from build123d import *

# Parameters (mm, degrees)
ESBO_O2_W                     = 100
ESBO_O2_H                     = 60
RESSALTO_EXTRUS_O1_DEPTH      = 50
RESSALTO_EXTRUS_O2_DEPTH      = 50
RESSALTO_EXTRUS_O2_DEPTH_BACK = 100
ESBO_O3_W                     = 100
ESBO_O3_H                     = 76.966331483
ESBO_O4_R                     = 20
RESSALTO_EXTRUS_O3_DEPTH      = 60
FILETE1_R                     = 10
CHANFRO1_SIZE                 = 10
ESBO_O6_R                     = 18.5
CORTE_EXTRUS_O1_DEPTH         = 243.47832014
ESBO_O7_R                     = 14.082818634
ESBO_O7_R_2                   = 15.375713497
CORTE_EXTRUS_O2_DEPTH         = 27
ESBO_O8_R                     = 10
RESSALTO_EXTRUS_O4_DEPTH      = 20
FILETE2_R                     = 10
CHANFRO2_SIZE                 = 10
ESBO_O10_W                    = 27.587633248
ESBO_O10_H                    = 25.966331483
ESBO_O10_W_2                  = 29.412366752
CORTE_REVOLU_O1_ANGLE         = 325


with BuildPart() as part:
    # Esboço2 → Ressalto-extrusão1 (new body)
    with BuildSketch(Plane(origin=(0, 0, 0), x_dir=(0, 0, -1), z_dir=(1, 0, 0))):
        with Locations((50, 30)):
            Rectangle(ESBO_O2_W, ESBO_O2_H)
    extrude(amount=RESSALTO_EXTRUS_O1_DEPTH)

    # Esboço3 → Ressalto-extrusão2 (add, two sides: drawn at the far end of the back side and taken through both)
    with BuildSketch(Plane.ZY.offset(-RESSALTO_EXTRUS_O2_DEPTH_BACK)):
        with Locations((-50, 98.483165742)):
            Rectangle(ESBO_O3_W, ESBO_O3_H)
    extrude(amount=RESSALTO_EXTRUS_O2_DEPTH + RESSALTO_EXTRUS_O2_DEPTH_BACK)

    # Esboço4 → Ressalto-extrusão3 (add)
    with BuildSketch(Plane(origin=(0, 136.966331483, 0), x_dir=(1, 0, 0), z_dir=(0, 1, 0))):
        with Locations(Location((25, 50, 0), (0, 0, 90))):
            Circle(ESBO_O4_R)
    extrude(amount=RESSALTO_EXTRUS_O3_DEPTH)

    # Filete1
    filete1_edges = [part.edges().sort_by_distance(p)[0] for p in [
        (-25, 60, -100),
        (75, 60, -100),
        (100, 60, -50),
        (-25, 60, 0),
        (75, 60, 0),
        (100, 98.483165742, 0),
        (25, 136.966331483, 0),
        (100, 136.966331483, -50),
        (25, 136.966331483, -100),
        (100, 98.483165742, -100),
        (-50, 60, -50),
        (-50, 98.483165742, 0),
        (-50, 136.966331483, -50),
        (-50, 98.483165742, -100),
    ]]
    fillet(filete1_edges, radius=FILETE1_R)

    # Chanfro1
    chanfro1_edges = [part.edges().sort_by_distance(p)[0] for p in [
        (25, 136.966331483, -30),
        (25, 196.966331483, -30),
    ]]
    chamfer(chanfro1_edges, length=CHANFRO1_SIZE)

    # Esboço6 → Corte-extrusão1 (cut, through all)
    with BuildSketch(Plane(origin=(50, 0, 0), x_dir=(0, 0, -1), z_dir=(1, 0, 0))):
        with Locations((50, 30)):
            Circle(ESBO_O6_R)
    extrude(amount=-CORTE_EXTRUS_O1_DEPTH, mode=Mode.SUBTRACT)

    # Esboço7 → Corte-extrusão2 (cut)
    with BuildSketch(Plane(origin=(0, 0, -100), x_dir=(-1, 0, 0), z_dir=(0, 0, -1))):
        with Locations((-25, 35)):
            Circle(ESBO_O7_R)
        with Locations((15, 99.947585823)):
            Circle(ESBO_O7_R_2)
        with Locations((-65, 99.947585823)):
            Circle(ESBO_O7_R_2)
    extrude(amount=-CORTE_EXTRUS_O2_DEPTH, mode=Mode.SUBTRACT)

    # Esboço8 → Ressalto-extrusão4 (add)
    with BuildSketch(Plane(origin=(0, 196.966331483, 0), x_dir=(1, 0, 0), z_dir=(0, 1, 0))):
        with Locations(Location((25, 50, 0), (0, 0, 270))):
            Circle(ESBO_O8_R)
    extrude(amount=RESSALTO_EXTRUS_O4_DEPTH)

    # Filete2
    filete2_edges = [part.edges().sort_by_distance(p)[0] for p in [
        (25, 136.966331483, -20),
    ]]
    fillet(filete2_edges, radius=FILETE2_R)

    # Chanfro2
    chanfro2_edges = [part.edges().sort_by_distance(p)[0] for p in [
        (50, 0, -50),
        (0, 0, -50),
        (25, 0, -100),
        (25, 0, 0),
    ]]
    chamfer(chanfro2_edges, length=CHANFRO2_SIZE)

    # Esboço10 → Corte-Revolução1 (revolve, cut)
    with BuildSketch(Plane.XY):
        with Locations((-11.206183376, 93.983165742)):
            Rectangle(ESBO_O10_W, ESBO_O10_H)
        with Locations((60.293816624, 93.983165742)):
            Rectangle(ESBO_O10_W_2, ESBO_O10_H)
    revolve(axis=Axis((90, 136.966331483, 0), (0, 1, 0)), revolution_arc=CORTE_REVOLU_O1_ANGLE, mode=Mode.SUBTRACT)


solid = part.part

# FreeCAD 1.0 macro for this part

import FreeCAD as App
import Part
import Sketcher

V = App.Vector


def edges_at(feature, points):
    """Names of the edges that pass closest to the given points."""
    edges = feature.Shape.Edges
    near = lambda p: min(range(len(edges)), key=lambda i: edges[i].distToShape(Part.Vertex(*p))[0])
    return sorted({f"Edge{near(p) + 1}" for p in points})

doc = App.newDocument("Part")
body = doc.addObject("PartDesign::Body", "Body")

# Sketch on YZ plane
sketch1 = body.newObject("Sketcher::SketchObject", "Sketch")
sketch1.AttachmentSupport = (doc.getObject("YZ_Plane"), [""])
sketch1.MapMode = "FlatFace"
sketch1.addGeometry(Part.LineSegment(V(60, 0, 0), V(0, 0, 0)), False)
sketch1.addGeometry(Part.LineSegment(V(0, 0, 0), V(0, -100, 0)), False)
sketch1.addGeometry(Part.LineSegment(V(0, -100, 0), V(60, -100, 0)), False)
sketch1.addGeometry(Part.LineSegment(V(60, -100, 0), V(60, 0, 0)), False)
sketch1.addConstraint(Sketcher.Constraint("Coincident", 0, 2, 1, 1))
sketch1.addConstraint(Sketcher.Constraint("Coincident", 1, 2, 2, 1))
sketch1.addConstraint(Sketcher.Constraint("Coincident", 2, 2, 3, 1))
sketch1.addConstraint(Sketcher.Constraint("Coincident", 3, 2, 0, 1))
sketch1.addConstraint(Sketcher.Constraint("Horizontal", 0))
sketch1.addConstraint(Sketcher.Constraint("Vertical", 1))
sketch1.addConstraint(Sketcher.Constraint("Horizontal", 2))
sketch1.addConstraint(Sketcher.Constraint("Vertical", 3))
sketch1.addConstraint(Sketcher.Constraint("Coincident", 0, 2, -1, 1))
sketch1.addConstraint(Sketcher.Constraint("DistanceX", 0, 2, 0, 1, 60.0))
sketch1.addConstraint(Sketcher.Constraint("DistanceY", 1, 2, 1, 1, 100.0))
pad1 = body.newObject("PartDesign::Pad", "Pad")
pad1.Profile = sketch1
pad1.Length = 50

# Sketch on YZ plane
sketch2 = body.newObject("Sketcher::SketchObject", "Sketch001")
sketch2.AttachmentSupport = (doc.getObject("YZ_Plane"), [""])
sketch2.MapMode = "FlatFace"
sketch2.addGeometry(Part.LineSegment(V(137, -100, 0), V(60, -100, 0)), False)
sketch2.addGeometry(Part.LineSegment(V(60, -100, 0), V(60, 0, 0)), False)
sketch2.addGeometry(Part.LineSegment(V(60, 0, 0), V(137, 0, 0)), False)
sketch2.addGeometry(Part.LineSegment(V(137, 0, 0), V(137, -100, 0)), False)
sketch2.addConstraint(Sketcher.Constraint("Coincident", 0, 2, 1, 1))
sketch2.addConstraint(Sketcher.Constraint("Coincident", 1, 2, 2, 1))
sketch2.addConstraint(Sketcher.Constraint("Coincident", 2, 2, 3, 1))
sketch2.addConstraint(Sketcher.Constraint("Coincident", 3, 2, 0, 1))
sketch2.addConstraint(Sketcher.Constraint("Horizontal", 0))
sketch2.addConstraint(Sketcher.Constraint("Vertical", 1))
sketch2.addConstraint(Sketcher.Constraint("Horizontal", 2))
sketch2.addConstraint(Sketcher.Constraint("Vertical", 3))
sketch2.addConstraint(Sketcher.Constraint("PointOnObject", 1, 2, -1))
sketch2.addConstraint(Sketcher.Constraint("DistanceY", 1, 1, 1, 2, 100.0))
sketch2.addConstraint(Sketcher.Constraint("DistanceX", -1, 1, 0, 2, 60.0))
sketch2.addConstraint(Sketcher.Constraint("DistanceX", 0, 2, 0, 1, 76.966331))
pad2 = body.newObject("PartDesign::Pad", "Pad001")
pad2.Profile = sketch2
pad2.Type = "TwoLengths"
pad2.Length = 50
pad2.Length2 = 100
pad2.Reversed = True

# Sketch on XZ plane
sketch3 = body.newObject("Sketcher::SketchObject", "Sketch002")
sketch3.AttachmentSupport = (doc.getObject("XZ_Plane"), [""])
sketch3.MapMode = "FlatFace"
sketch3.AttachmentOffset = App.Placement(V(0, 0, -136.966331), App.Rotation())
sketch3.addGeometry(Part.Circle(V(25, -50, 0), V(0, 0, 1), 20), False)
sketch3.addConstraint(Sketcher.Constraint("Diameter", 0, 40.0))
sketch3.addConstraint(Sketcher.Constraint("DistanceX", -1, 1, 0, 3, 25.0))
sketch3.addConstraint(Sketcher.Constraint("DistanceY", 0, 3, -1, 1, 50.0))
pad3 = body.newObject("PartDesign::Pad", "Pad002")
pad3.Profile = sketch3
pad3.Length = 60
pad3.Reversed = True
doc.recompute()

fillet = body.newObject("PartDesign::Fillet", "Fillet")
fillet.Base = (pad3, edges_at(pad3, [
    (-25, 60, -100),
    (75, 60, -100),
    (100, 60, -50),
    (-25, 60, 0),
    (75, 60, 0),
    (100, 98.483, 0),
    (25, 136.966, 0),
    (100, 136.966, -50),
    (25, 136.966, -100),
    (100, 98.483, -100),
    (-50, 60, -50),
    (-50, 98.483, 0),
    (-50, 136.966, -50),
    (-50, 98.483, -100),
]))
fillet.Radius = 10
doc.recompute()

chamfer = body.newObject("PartDesign::Chamfer", "Chamfer")
chamfer.Base = (fillet, edges_at(fillet, [(25, 136.966, -30), (25, 196.966, -30)]))
chamfer.Size = 10

# Sketch on YZ plane
sketch4 = body.newObject("Sketcher::SketchObject", "Sketch003")
sketch4.AttachmentSupport = (doc.getObject("YZ_Plane"), [""])
sketch4.MapMode = "FlatFace"
sketch4.AttachmentOffset = App.Placement(V(0, 0, 50), App.Rotation())
sketch4.addGeometry(Part.Circle(V(30, -50, 0), V(0, 0, 1), 18), False)
sketch4.addConstraint(Sketcher.Constraint("Diameter", 0, 37.0))
sketch4.addConstraint(Sketcher.Constraint("DistanceX", -1, 1, 0, 3, 30.0))
sketch4.addConstraint(Sketcher.Constraint("DistanceY", 0, 3, -1, 1, 50.0))
pocket1 = body.newObject("PartDesign::Pocket", "Pocket")
pocket1.Profile = sketch4
pocket1.Type = "ThroughAll"

# Sketch on XY plane
sketch5 = body.newObject("Sketcher::SketchObject", "Sketch004")
sketch5.AttachmentSupport = (doc.getObject("XY_Plane"), [""])
sketch5.MapMode = "FlatFace"
sketch5.AttachmentOffset = App.Placement(V(0, 0, -100), App.Rotation())
sketch5.addGeometry(Part.Circle(V(25, 35, 0), V(0, 0, 1), 14), False)
sketch5.addGeometry(Part.Circle(V(-15, 100, 0), V(0, 0, 1), 15), False)
sketch5.addGeometry(Part.Circle(V(65, 100, 0), V(0, 0, 1), 15), False)
sketch5.addConstraint(Sketcher.Constraint("Equal", 1, 2))
sketch5.addConstraint(Sketcher.Constraint("Horizontal", 1, 3, 2, 3))
sketch5.addConstraint(Sketcher.Constraint("DistanceX", -1, 1, 0, 3, 25.0))
sketch5.addConstraint(Sketcher.Constraint("DistanceY", -1, 1, 0, 3, 35.0))
sketch5.addConstraint(Sketcher.Constraint("DistanceX", 1, 3, -1, 1, 15.0))
sketch5.addConstraint(Sketcher.Constraint("DistanceX", -1, 1, 2, 3, 65.0))
sketch5.addConstraint(Sketcher.Constraint("Diameter", 0, 28.165637))
sketch5.addConstraint(Sketcher.Constraint("Diameter", 1, 30.751427))
sketch5.addConstraint(Sketcher.Constraint("DistanceY", -1, 1, 1, 3, 99.947586))
pocket2 = body.newObject("PartDesign::Pocket", "Pocket001")
pocket2.Profile = sketch5
pocket2.Length = 27
pocket2.Reversed = True

# Sketch on XZ plane
sketch6 = body.newObject("Sketcher::SketchObject", "Sketch005")
sketch6.AttachmentSupport = (doc.getObject("XZ_Plane"), [""])
sketch6.MapMode = "FlatFace"
sketch6.AttachmentOffset = App.Placement(V(0, 0, -196.966331), App.Rotation())
sketch6.addGeometry(Part.Circle(V(25, -50, 0), V(0, 0, 1), 10), False)
sketch6.addConstraint(Sketcher.Constraint("Diameter", 0, 20.0))
sketch6.addConstraint(Sketcher.Constraint("DistanceX", -1, 1, 0, 3, 25.0))
sketch6.addConstraint(Sketcher.Constraint("DistanceY", 0, 3, -1, 1, 50.0))
pad4 = body.newObject("PartDesign::Pad", "Pad003")
pad4.Profile = sketch6
pad4.Length = 20
pad4.Reversed = True
doc.recompute()

fillet2 = body.newObject("PartDesign::Fillet", "Fillet001")
fillet2.Base = (pad4, edges_at(pad4, [(25, 136.966, -20)]))
fillet2.Radius = 10
doc.recompute()

chamfer2 = body.newObject("PartDesign::Chamfer", "Chamfer001")
chamfer2.Base = (fillet2, edges_at(fillet2, [
    (50, 0, -50),
    (0, 0, -50),
    (25, 0, -100),
    (25, 0, 0),
]))
chamfer2.Size = 10

# Sketch on XY plane
sketch7 = body.newObject("Sketcher::SketchObject", "Sketch006")
sketch7.AttachmentSupport = (doc.getObject("XY_Plane"), [""])
sketch7.MapMode = "FlatFace"
sketch7.addGeometry(Part.LineSegment(V(-25, 107, 0), V(-25, 81, 0)), False)
sketch7.addGeometry(Part.LineSegment(V(-25, 81, 0), V(3, 81, 0)), False)
sketch7.addGeometry(Part.LineSegment(V(3, 81, 0), V(3, 107, 0)), False)
sketch7.addGeometry(Part.LineSegment(V(3, 107, 0), V(-25, 107, 0)), False)
sketch7.addGeometry(Part.LineSegment(V(46, 107, 0), V(46, 81, 0)), False)
sketch7.addGeometry(Part.LineSegment(V(46, 81, 0), V(75, 81, 0)), False)
sketch7.addGeometry(Part.LineSegment(V(75, 81, 0), V(75, 107, 0)), False)
sketch7.addGeometry(Part.LineSegment(V(75, 107, 0), V(46, 107, 0)), False)
sketch7.addGeometry(Part.LineSegment(V(90, 81, 0), V(90, 107, 0)), True)  # axis
sketch7.addConstraint(Sketcher.Constraint("Coincident", 0, 2, 1, 1))
sketch7.addConstraint(Sketcher.Constraint("Coincident", 1, 2, 2, 1))
sketch7.addConstraint(Sketcher.Constraint("Coincident", 2, 2, 3, 1))
sketch7.addConstraint(Sketcher.Constraint("Coincident", 3, 2, 0, 1))
sketch7.addConstraint(Sketcher.Constraint("Coincident", 4, 2, 5, 1))
sketch7.addConstraint(Sketcher.Constraint("Coincident", 5, 2, 6, 1))
sketch7.addConstraint(Sketcher.Constraint("Coincident", 6, 2, 7, 1))
sketch7.addConstraint(Sketcher.Constraint("Coincident", 7, 2, 4, 1))
sketch7.addConstraint(Sketcher.Constraint("Vertical", 0))
sketch7.addConstraint(Sketcher.Constraint("Horizontal", 1))
sketch7.addConstraint(Sketcher.Constraint("Vertical", 2))
sketch7.addConstraint(Sketcher.Constraint("Horizontal", 3))
sketch7.addConstraint(Sketcher.Constraint("Vertical", 4))
sketch7.addConstraint(Sketcher.Constraint("Horizontal", 5))
sketch7.addConstraint(Sketcher.Constraint("Vertical", 6))
sketch7.addConstraint(Sketcher.Constraint("Horizontal", 7))
sketch7.addConstraint(Sketcher.Constraint("Vertical", 8))
sketch7.addConstraint(Sketcher.Constraint("Horizontal", 1, 2, 4, 2))
sketch7.addConstraint(Sketcher.Constraint("Horizontal", 3, 2, 6, 2))
sketch7.addConstraint(Sketcher.Constraint("Horizontal", 5, 2, 8, 1))
sketch7.addConstraint(Sketcher.Constraint("Horizontal", 7, 2, 8, 2))
sketch7.addConstraint(Sketcher.Constraint("DistanceX", 0, 2, -1, 1, 25.0))
sketch7.addConstraint(Sketcher.Constraint("DistanceY", -1, 1, 0, 2, 81.0))
sketch7.addConstraint(Sketcher.Constraint("DistanceX", -1, 1, 5, 2, 75.0))
sketch7.addConstraint(Sketcher.Constraint("DistanceX", -1, 1, 8, 1, 90.0))
sketch7.addConstraint(Sketcher.Constraint("DistanceX", 1, 2, 4, 2, 43.0))
sketch7.addConstraint(Sketcher.Constraint("DistanceY", 0, 2, 0, 1, 25.966331))
sketch7.addConstraint(Sketcher.Constraint("DistanceX", 1, 1, 1, 2, 27.587633))
groove = body.newObject("PartDesign::Groove", "Groove")
groove.Profile = sketch7
groove.ReferenceAxis = (sketch7, ["Axis0"])
groove.Angle = 325

doc.recompute()
